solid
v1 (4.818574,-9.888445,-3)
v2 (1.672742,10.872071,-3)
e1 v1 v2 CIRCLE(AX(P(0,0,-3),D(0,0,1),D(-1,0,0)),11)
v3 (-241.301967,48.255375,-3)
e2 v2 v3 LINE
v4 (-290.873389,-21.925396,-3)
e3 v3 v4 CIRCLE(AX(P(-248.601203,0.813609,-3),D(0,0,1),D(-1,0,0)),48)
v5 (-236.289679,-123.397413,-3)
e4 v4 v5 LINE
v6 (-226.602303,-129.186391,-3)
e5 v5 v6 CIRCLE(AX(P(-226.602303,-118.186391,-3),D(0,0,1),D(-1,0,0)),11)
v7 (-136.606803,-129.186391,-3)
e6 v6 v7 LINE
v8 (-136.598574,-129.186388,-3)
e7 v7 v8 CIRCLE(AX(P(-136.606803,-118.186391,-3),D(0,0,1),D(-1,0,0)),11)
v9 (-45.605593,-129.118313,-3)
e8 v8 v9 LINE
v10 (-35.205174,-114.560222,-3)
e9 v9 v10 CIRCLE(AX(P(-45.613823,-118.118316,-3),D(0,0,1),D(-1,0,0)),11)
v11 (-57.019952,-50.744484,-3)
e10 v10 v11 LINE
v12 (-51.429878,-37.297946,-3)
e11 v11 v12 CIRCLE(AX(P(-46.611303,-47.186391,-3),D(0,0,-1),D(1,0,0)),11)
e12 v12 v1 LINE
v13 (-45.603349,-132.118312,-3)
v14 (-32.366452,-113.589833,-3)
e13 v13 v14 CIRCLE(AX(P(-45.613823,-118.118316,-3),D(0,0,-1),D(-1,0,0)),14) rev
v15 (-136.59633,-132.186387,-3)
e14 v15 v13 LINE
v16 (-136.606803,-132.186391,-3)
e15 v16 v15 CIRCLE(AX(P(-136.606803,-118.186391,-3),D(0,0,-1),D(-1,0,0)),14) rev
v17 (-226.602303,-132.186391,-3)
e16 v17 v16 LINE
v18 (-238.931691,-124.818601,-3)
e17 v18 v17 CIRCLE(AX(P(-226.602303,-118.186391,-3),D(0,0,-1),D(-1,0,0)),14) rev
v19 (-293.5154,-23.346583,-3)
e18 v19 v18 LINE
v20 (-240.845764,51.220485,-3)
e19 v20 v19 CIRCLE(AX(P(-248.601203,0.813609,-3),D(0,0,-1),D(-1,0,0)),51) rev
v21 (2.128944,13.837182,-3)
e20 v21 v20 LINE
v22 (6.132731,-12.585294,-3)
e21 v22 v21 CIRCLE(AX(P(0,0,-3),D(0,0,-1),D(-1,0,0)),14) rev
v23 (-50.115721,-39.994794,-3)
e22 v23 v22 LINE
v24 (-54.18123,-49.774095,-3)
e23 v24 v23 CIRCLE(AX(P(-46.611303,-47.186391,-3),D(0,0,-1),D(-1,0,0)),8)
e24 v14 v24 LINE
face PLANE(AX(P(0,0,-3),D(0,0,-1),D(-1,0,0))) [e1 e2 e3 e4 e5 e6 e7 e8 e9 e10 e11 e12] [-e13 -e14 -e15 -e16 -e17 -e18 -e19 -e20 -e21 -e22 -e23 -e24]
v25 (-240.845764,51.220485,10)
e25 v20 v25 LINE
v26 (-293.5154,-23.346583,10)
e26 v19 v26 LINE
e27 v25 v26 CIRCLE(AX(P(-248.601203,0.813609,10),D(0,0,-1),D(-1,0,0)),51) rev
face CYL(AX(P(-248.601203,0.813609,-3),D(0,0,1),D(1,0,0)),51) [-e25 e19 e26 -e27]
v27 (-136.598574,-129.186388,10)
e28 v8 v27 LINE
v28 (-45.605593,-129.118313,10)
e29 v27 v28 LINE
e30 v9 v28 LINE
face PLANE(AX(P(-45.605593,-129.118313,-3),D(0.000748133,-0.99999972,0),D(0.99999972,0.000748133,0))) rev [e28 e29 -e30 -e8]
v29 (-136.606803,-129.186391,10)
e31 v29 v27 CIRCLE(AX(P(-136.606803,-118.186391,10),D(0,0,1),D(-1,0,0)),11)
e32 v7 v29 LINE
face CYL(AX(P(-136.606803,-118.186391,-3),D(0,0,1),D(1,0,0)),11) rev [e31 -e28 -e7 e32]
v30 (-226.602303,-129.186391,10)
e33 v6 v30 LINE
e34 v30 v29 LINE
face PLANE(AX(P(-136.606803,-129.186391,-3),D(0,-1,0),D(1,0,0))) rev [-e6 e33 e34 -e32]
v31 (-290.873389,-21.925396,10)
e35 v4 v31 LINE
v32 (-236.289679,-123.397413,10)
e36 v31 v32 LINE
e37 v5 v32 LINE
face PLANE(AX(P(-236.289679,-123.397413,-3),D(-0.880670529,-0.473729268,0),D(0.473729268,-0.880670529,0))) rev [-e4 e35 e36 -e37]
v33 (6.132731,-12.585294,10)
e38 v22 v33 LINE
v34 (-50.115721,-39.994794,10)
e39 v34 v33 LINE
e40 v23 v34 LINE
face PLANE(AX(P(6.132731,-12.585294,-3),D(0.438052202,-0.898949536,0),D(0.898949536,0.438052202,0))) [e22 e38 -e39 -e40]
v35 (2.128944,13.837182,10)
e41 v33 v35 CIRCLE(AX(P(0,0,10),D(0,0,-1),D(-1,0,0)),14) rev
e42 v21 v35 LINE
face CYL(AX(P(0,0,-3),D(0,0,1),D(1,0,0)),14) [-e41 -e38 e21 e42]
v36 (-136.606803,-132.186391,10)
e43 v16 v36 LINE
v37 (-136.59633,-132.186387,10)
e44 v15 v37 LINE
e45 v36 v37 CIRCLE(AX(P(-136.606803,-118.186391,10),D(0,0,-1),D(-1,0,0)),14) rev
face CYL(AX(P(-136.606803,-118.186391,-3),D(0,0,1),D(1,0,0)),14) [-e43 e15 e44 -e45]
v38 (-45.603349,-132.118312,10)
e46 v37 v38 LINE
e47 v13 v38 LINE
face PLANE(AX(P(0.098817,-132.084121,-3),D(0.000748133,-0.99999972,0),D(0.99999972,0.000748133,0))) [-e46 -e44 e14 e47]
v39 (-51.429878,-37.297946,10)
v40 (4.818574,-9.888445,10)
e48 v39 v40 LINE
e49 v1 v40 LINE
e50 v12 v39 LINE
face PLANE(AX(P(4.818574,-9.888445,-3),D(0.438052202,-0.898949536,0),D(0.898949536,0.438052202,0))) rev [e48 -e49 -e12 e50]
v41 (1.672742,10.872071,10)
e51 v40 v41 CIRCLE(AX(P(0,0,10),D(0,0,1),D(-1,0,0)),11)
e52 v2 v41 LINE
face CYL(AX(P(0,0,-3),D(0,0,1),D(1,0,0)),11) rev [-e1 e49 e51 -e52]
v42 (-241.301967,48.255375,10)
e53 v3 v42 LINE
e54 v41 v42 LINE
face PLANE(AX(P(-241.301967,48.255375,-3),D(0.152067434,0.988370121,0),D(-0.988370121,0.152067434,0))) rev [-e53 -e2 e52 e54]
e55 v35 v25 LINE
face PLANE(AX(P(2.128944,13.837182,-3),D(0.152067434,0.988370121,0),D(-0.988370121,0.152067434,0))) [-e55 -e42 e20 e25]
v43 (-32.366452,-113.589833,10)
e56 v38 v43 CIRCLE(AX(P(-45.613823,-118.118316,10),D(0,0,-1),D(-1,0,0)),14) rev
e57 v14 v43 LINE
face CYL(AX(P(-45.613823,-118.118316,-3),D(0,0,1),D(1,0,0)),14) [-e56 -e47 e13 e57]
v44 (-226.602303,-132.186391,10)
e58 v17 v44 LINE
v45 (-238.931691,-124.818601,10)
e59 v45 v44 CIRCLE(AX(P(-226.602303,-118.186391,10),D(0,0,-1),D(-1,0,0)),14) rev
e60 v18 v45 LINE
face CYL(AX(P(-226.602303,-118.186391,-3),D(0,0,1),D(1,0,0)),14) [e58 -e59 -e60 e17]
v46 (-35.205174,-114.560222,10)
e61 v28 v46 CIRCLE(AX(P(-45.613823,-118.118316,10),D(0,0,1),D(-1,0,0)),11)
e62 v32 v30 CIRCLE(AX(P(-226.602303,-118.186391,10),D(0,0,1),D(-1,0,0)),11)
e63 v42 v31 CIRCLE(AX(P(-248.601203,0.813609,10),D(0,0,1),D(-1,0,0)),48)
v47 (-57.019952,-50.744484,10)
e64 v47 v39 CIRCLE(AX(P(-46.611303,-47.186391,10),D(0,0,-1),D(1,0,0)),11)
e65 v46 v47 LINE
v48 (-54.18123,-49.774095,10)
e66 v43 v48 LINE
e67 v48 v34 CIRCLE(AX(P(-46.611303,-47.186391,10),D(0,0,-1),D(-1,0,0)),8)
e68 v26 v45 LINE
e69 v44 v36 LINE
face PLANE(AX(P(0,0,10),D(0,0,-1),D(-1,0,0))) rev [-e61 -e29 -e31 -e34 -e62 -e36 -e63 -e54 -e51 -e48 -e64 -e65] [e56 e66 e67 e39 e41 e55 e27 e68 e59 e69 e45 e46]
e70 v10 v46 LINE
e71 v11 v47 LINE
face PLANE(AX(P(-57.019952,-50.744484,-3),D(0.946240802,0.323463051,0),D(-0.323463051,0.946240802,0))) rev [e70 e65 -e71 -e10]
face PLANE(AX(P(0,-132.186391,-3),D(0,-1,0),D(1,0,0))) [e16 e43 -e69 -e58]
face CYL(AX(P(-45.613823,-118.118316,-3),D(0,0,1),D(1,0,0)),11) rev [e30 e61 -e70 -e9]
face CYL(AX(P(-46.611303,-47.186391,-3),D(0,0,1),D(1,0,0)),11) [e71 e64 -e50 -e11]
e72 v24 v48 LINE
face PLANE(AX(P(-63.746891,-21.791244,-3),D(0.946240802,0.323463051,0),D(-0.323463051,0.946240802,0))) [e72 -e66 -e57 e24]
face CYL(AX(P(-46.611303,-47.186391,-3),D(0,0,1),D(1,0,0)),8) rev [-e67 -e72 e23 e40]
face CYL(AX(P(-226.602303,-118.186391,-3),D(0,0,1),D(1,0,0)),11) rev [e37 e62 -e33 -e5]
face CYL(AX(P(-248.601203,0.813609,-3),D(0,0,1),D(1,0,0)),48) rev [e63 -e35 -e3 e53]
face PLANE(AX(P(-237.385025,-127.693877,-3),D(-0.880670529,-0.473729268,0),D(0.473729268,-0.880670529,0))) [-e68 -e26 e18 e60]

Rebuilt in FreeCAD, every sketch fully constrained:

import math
import FreeCAD as App
import Part
import Sketcher
Q = App.Units.Quantity

doc = App.newDocument("Part")
body = doc.addObject("PartDesign::Body", "Body")

sketch1 = body.newObject("Sketcher::SketchObject", "Sketch")
sketch1.AttachmentSupport = (doc.getObject("XY_Plane"), [""])
sketch1.MapMode = "FlatFace"
sketch1.addGeometry(Part.LineSegment(App.Vector(2.129, 13.837, 0), App.Vector(-240.846, 51.22, 0)), False)
sketch1.addGeometry(Part.ArcOfCircle(Part.Circle(App.Vector(-248.601, 0.814, 0), App.Vector(0, 0, 1), 51), math.radians(81), math.radians(208)), False)
sketch1.addGeometry(Part.LineSegment(App.Vector(-293.515, -23.347, 0), App.Vector(-238.932, -124.819, 0)), False)
sketch1.addGeometry(Part.ArcOfCircle(Part.Circle(App.Vector(-226.602, -118.186, 0), App.Vector(0, 0, 1), 14), math.radians(-152), math.radians(-90)), False)
sketch1.addGeometry(Part.LineSegment(App.Vector(-226.602, -132.186, 0), App.Vector(-136.607, -132.186, 0)), False)
sketch1.addGeometry(Part.ArcOfCircle(Part.Circle(App.Vector(-136.607, -118.18, 0), App.Vector(0, 0, 1), 14.007), math.radians(-90), math.radians(-89.96)), False)
sketch1.addGeometry(Part.LineSegment(App.Vector(-136.596, -132.186, 0), App.Vector(-45.603, -132.118, 0)), False)
sketch1.addGeometry(Part.ArcOfCircle(Part.Circle(App.Vector(-45.614, -118.118, 0), App.Vector(0, 0, 1), 14), math.radians(-90), math.radians(19)), False)
sketch1.addGeometry(Part.LineSegment(App.Vector(-32.366, -113.59, 0), App.Vector(-54.181, -49.774, 0)), False)
sketch1.addGeometry(Part.ArcOfCircle(Part.Circle(App.Vector(-46.611, -47.186, 0), App.Vector(0, 0, 1), 8), math.radians(116), math.radians(199)), False)
sketch1.addGeometry(Part.LineSegment(App.Vector(-50.116, -39.995, 0), App.Vector(6.133, -12.585, 0)), False)
sketch1.addGeometry(Part.ArcOfCircle(Part.Circle(App.Vector(0, 0, 0), App.Vector(0, 0, 1), 14), math.radians(-64), math.radians(81)), False)
sketch1.addGeometry(Part.LineSegment(App.Vector(-241.302, 48.255, 0), App.Vector(1.673, 10.872, 0)), False)
sketch1.addGeometry(Part.ArcOfCircle(Part.Circle(App.Vector(0, 0, 0), App.Vector(0, 0, 1), 11), math.radians(-64), math.radians(81)), False)
sketch1.addGeometry(Part.LineSegment(App.Vector(4.819, -9.888, 0), App.Vector(-51.43, -37.298, 0)), False)
sketch1.addGeometry(Part.ArcOfCircle(Part.Circle(App.Vector(-46.611, -47.186, 0), App.Vector(0, 0, 1), 11), math.radians(116), math.radians(199)), False)
sketch1.addGeometry(Part.LineSegment(App.Vector(-57.02, -50.744, 0), App.Vector(-35.205, -114.56, 0)), False)
sketch1.addGeometry(Part.ArcOfCircle(Part.Circle(App.Vector(-45.614, -118.118, 0), App.Vector(0, 0, 1), 11), math.radians(-90), math.radians(19)), False)
sketch1.addGeometry(Part.LineSegment(App.Vector(-45.606, -129.118, 0), App.Vector(-136.599, -129.186, 0)), False)
sketch1.addGeometry(Part.ArcOfCircle(Part.Circle(App.Vector(-136.607, -118.178, 0), App.Vector(0, 0, 1), 11.008), math.radians(-90), math.radians(-89.96)), False)
sketch1.addGeometry(Part.LineSegment(App.Vector(-136.607, -129.186, 0), App.Vector(-226.602, -129.186, 0)), False)
sketch1.addGeometry(Part.ArcOfCircle(Part.Circle(App.Vector(-226.602, -118.186, 0), App.Vector(0, 0, 1), 11), math.radians(-152), math.radians(-90)), False)
sketch1.addGeometry(Part.LineSegment(App.Vector(-236.29, -123.397, 0), App.Vector(-290.873, -21.925, 0)), False)
sketch1.addGeometry(Part.ArcOfCircle(Part.Circle(App.Vector(-248.601, 0.814, 0), App.Vector(0, 0, 1), 48), math.radians(81), math.radians(208)), False)
sketch1.addConstraint(Sketcher.Constraint("Tangent", 0, 2, 1, 1))
sketch1.addConstraint(Sketcher.Constraint("Tangent", 1, 2, 2, 1))
sketch1.addConstraint(Sketcher.Constraint("Tangent", 2, 2, 3, 1))
sketch1.addConstraint(Sketcher.Constraint("Tangent", 3, 2, 4, 1))
sketch1.addConstraint(Sketcher.Constraint("Tangent", 4, 2, 5, 1))
sketch1.addConstraint(Sketcher.Constraint("Tangent", 5, 2, 6, 1))
sketch1.addConstraint(Sketcher.Constraint("Tangent", 6, 2, 7, 1))
sketch1.addConstraint(Sketcher.Constraint("Tangent", 7, 2, 8, 1))
sketch1.addConstraint(Sketcher.Constraint("Tangent", 8, 2, 9, 2))
sketch1.addConstraint(Sketcher.Constraint("Tangent", 9, 1, 10, 1))
sketch1.addConstraint(Sketcher.Constraint("Tangent", 10, 2, 11, 1))
sketch1.addConstraint(Sketcher.Constraint("Tangent", 11, 2, 0, 1))
sketch1.addConstraint(Sketcher.Constraint("Tangent", 12, 2, 13, 2))
sketch1.addConstraint(Sketcher.Constraint("Tangent", 13, 1, 14, 1))
sketch1.addConstraint(Sketcher.Constraint("Tangent", 14, 2, 15, 1))
sketch1.addConstraint(Sketcher.Constraint("Tangent", 15, 2, 16, 1))
sketch1.addConstraint(Sketcher.Constraint("Tangent", 16, 2, 17, 2))
sketch1.addConstraint(Sketcher.Constraint("Tangent", 17, 1, 18, 1))
sketch1.addConstraint(Sketcher.Constraint("Tangent", 18, 2, 19, 2))
sketch1.addConstraint(Sketcher.Constraint("Tangent", 19, 1, 20, 1))
sketch1.addConstraint(Sketcher.Constraint("Tangent", 20, 2, 21, 2))
sketch1.addConstraint(Sketcher.Constraint("Tangent", 21, 1, 22, 1))
sketch1.addConstraint(Sketcher.Constraint("Tangent", 22, 2, 23, 2))
sketch1.addConstraint(Sketcher.Constraint("Tangent", 23, 1, 12, 1))
sketch1.addConstraint(Sketcher.Constraint("Horizontal", 4))
sketch1.addConstraint(Sketcher.Constraint("Horizontal", 20))
sketch1.addConstraint(Sketcher.Constraint("Coincident", 11, 3, -1, 1))
sketch1.addConstraint(Sketcher.Constraint("Coincident", 13, 3, -1, 1))
sketch1.addConstraint(Sketcher.Constraint("Coincident", 15, 3, 9, 3))
sketch1.addConstraint(Sketcher.Constraint("Coincident", 17, 3, 7, 3))
sketch1.addConstraint(Sketcher.Constraint("Coincident", 21, 3, 3, 3))
sketch1.addConstraint(Sketcher.Constraint("Coincident", 23, 3, 1, 3))
sketch1.addConstraint(Sketcher.Constraint("Equal", 3, 7))
sketch1.addConstraint(Sketcher.Constraint("Equal", 7, 11))
sketch1.addConstraint(Sketcher.Constraint("Equal", 13, 15))
sketch1.addConstraint(Sketcher.Constraint("Equal", 15, 17))
sketch1.addConstraint(Sketcher.Constraint("Equal", 17, 21))
sketch1.addConstraint(Sketcher.Constraint("Parallel", 0, 12))
sketch1.addConstraint(Sketcher.Constraint("Parallel", 10, 14))
sketch1.addConstraint(Sketcher.Constraint("Vertical", 5, 3, 19, 3))
sketch1.addConstraint(Sketcher.Constraint("Radius", 1, Q("51 mm")))
sketch1.addConstraint(Sketcher.Constraint("Radius", 3, Q("14 mm")))
sketch1.addConstraint(Sketcher.Constraint("Radius", 9, Q("8 mm")))
sketch1.addConstraint(Sketcher.Constraint("DistanceY", 3, 3, 1, 3, Q("119 mm")))
sketch1.addConstraint(Sketcher.Constraint("DistanceY", 3, 3, 9, 3, Q("71 mm")))
sketch1.addConstraint(Sketcher.Constraint("Radius", 19, Q("11.008468 mm")))
sketch1.addConstraint(Sketcher.Constraint("DistanceX", 4, 1, 4, 2, Q("89.9955 mm")))
sketch1.addConstraint(Sketcher.Constraint("Radius", 5, Q("14.006876 mm")))
sketch1.addConstraint(Sketcher.Constraint("DistanceX", 3, 3, 9, 3, Q("179.991 mm")))
sketch1.addConstraint(Sketcher.Constraint("DistanceX", 1, 2, -1, 1, Q("293.5154 mm")))
sketch1.addConstraint(Sketcher.Constraint("DistanceY", 2, 2, -1, 1, Q("124.818601 mm")))
sketch1.addConstraint(Sketcher.Constraint("DistanceX", 1, 3, 3, 3, Q("21.9989 mm")))
sketch1.addConstraint(Sketcher.Constraint("DistanceY", 5, 3, 7, 3, Q("0.061199 mm")))
sketch1.addConstraint(Sketcher.Constraint("DistanceY", 8, 2, 9, 1, Q("9.779301 mm")))
pad1 = body.newObject("PartDesign::Pad", "Pad")
pad1.Profile = sketch1
pad1.Type = "TwoLengths"
pad1.Length = 10
pad1.Length2 = 3

doc.recompute()
